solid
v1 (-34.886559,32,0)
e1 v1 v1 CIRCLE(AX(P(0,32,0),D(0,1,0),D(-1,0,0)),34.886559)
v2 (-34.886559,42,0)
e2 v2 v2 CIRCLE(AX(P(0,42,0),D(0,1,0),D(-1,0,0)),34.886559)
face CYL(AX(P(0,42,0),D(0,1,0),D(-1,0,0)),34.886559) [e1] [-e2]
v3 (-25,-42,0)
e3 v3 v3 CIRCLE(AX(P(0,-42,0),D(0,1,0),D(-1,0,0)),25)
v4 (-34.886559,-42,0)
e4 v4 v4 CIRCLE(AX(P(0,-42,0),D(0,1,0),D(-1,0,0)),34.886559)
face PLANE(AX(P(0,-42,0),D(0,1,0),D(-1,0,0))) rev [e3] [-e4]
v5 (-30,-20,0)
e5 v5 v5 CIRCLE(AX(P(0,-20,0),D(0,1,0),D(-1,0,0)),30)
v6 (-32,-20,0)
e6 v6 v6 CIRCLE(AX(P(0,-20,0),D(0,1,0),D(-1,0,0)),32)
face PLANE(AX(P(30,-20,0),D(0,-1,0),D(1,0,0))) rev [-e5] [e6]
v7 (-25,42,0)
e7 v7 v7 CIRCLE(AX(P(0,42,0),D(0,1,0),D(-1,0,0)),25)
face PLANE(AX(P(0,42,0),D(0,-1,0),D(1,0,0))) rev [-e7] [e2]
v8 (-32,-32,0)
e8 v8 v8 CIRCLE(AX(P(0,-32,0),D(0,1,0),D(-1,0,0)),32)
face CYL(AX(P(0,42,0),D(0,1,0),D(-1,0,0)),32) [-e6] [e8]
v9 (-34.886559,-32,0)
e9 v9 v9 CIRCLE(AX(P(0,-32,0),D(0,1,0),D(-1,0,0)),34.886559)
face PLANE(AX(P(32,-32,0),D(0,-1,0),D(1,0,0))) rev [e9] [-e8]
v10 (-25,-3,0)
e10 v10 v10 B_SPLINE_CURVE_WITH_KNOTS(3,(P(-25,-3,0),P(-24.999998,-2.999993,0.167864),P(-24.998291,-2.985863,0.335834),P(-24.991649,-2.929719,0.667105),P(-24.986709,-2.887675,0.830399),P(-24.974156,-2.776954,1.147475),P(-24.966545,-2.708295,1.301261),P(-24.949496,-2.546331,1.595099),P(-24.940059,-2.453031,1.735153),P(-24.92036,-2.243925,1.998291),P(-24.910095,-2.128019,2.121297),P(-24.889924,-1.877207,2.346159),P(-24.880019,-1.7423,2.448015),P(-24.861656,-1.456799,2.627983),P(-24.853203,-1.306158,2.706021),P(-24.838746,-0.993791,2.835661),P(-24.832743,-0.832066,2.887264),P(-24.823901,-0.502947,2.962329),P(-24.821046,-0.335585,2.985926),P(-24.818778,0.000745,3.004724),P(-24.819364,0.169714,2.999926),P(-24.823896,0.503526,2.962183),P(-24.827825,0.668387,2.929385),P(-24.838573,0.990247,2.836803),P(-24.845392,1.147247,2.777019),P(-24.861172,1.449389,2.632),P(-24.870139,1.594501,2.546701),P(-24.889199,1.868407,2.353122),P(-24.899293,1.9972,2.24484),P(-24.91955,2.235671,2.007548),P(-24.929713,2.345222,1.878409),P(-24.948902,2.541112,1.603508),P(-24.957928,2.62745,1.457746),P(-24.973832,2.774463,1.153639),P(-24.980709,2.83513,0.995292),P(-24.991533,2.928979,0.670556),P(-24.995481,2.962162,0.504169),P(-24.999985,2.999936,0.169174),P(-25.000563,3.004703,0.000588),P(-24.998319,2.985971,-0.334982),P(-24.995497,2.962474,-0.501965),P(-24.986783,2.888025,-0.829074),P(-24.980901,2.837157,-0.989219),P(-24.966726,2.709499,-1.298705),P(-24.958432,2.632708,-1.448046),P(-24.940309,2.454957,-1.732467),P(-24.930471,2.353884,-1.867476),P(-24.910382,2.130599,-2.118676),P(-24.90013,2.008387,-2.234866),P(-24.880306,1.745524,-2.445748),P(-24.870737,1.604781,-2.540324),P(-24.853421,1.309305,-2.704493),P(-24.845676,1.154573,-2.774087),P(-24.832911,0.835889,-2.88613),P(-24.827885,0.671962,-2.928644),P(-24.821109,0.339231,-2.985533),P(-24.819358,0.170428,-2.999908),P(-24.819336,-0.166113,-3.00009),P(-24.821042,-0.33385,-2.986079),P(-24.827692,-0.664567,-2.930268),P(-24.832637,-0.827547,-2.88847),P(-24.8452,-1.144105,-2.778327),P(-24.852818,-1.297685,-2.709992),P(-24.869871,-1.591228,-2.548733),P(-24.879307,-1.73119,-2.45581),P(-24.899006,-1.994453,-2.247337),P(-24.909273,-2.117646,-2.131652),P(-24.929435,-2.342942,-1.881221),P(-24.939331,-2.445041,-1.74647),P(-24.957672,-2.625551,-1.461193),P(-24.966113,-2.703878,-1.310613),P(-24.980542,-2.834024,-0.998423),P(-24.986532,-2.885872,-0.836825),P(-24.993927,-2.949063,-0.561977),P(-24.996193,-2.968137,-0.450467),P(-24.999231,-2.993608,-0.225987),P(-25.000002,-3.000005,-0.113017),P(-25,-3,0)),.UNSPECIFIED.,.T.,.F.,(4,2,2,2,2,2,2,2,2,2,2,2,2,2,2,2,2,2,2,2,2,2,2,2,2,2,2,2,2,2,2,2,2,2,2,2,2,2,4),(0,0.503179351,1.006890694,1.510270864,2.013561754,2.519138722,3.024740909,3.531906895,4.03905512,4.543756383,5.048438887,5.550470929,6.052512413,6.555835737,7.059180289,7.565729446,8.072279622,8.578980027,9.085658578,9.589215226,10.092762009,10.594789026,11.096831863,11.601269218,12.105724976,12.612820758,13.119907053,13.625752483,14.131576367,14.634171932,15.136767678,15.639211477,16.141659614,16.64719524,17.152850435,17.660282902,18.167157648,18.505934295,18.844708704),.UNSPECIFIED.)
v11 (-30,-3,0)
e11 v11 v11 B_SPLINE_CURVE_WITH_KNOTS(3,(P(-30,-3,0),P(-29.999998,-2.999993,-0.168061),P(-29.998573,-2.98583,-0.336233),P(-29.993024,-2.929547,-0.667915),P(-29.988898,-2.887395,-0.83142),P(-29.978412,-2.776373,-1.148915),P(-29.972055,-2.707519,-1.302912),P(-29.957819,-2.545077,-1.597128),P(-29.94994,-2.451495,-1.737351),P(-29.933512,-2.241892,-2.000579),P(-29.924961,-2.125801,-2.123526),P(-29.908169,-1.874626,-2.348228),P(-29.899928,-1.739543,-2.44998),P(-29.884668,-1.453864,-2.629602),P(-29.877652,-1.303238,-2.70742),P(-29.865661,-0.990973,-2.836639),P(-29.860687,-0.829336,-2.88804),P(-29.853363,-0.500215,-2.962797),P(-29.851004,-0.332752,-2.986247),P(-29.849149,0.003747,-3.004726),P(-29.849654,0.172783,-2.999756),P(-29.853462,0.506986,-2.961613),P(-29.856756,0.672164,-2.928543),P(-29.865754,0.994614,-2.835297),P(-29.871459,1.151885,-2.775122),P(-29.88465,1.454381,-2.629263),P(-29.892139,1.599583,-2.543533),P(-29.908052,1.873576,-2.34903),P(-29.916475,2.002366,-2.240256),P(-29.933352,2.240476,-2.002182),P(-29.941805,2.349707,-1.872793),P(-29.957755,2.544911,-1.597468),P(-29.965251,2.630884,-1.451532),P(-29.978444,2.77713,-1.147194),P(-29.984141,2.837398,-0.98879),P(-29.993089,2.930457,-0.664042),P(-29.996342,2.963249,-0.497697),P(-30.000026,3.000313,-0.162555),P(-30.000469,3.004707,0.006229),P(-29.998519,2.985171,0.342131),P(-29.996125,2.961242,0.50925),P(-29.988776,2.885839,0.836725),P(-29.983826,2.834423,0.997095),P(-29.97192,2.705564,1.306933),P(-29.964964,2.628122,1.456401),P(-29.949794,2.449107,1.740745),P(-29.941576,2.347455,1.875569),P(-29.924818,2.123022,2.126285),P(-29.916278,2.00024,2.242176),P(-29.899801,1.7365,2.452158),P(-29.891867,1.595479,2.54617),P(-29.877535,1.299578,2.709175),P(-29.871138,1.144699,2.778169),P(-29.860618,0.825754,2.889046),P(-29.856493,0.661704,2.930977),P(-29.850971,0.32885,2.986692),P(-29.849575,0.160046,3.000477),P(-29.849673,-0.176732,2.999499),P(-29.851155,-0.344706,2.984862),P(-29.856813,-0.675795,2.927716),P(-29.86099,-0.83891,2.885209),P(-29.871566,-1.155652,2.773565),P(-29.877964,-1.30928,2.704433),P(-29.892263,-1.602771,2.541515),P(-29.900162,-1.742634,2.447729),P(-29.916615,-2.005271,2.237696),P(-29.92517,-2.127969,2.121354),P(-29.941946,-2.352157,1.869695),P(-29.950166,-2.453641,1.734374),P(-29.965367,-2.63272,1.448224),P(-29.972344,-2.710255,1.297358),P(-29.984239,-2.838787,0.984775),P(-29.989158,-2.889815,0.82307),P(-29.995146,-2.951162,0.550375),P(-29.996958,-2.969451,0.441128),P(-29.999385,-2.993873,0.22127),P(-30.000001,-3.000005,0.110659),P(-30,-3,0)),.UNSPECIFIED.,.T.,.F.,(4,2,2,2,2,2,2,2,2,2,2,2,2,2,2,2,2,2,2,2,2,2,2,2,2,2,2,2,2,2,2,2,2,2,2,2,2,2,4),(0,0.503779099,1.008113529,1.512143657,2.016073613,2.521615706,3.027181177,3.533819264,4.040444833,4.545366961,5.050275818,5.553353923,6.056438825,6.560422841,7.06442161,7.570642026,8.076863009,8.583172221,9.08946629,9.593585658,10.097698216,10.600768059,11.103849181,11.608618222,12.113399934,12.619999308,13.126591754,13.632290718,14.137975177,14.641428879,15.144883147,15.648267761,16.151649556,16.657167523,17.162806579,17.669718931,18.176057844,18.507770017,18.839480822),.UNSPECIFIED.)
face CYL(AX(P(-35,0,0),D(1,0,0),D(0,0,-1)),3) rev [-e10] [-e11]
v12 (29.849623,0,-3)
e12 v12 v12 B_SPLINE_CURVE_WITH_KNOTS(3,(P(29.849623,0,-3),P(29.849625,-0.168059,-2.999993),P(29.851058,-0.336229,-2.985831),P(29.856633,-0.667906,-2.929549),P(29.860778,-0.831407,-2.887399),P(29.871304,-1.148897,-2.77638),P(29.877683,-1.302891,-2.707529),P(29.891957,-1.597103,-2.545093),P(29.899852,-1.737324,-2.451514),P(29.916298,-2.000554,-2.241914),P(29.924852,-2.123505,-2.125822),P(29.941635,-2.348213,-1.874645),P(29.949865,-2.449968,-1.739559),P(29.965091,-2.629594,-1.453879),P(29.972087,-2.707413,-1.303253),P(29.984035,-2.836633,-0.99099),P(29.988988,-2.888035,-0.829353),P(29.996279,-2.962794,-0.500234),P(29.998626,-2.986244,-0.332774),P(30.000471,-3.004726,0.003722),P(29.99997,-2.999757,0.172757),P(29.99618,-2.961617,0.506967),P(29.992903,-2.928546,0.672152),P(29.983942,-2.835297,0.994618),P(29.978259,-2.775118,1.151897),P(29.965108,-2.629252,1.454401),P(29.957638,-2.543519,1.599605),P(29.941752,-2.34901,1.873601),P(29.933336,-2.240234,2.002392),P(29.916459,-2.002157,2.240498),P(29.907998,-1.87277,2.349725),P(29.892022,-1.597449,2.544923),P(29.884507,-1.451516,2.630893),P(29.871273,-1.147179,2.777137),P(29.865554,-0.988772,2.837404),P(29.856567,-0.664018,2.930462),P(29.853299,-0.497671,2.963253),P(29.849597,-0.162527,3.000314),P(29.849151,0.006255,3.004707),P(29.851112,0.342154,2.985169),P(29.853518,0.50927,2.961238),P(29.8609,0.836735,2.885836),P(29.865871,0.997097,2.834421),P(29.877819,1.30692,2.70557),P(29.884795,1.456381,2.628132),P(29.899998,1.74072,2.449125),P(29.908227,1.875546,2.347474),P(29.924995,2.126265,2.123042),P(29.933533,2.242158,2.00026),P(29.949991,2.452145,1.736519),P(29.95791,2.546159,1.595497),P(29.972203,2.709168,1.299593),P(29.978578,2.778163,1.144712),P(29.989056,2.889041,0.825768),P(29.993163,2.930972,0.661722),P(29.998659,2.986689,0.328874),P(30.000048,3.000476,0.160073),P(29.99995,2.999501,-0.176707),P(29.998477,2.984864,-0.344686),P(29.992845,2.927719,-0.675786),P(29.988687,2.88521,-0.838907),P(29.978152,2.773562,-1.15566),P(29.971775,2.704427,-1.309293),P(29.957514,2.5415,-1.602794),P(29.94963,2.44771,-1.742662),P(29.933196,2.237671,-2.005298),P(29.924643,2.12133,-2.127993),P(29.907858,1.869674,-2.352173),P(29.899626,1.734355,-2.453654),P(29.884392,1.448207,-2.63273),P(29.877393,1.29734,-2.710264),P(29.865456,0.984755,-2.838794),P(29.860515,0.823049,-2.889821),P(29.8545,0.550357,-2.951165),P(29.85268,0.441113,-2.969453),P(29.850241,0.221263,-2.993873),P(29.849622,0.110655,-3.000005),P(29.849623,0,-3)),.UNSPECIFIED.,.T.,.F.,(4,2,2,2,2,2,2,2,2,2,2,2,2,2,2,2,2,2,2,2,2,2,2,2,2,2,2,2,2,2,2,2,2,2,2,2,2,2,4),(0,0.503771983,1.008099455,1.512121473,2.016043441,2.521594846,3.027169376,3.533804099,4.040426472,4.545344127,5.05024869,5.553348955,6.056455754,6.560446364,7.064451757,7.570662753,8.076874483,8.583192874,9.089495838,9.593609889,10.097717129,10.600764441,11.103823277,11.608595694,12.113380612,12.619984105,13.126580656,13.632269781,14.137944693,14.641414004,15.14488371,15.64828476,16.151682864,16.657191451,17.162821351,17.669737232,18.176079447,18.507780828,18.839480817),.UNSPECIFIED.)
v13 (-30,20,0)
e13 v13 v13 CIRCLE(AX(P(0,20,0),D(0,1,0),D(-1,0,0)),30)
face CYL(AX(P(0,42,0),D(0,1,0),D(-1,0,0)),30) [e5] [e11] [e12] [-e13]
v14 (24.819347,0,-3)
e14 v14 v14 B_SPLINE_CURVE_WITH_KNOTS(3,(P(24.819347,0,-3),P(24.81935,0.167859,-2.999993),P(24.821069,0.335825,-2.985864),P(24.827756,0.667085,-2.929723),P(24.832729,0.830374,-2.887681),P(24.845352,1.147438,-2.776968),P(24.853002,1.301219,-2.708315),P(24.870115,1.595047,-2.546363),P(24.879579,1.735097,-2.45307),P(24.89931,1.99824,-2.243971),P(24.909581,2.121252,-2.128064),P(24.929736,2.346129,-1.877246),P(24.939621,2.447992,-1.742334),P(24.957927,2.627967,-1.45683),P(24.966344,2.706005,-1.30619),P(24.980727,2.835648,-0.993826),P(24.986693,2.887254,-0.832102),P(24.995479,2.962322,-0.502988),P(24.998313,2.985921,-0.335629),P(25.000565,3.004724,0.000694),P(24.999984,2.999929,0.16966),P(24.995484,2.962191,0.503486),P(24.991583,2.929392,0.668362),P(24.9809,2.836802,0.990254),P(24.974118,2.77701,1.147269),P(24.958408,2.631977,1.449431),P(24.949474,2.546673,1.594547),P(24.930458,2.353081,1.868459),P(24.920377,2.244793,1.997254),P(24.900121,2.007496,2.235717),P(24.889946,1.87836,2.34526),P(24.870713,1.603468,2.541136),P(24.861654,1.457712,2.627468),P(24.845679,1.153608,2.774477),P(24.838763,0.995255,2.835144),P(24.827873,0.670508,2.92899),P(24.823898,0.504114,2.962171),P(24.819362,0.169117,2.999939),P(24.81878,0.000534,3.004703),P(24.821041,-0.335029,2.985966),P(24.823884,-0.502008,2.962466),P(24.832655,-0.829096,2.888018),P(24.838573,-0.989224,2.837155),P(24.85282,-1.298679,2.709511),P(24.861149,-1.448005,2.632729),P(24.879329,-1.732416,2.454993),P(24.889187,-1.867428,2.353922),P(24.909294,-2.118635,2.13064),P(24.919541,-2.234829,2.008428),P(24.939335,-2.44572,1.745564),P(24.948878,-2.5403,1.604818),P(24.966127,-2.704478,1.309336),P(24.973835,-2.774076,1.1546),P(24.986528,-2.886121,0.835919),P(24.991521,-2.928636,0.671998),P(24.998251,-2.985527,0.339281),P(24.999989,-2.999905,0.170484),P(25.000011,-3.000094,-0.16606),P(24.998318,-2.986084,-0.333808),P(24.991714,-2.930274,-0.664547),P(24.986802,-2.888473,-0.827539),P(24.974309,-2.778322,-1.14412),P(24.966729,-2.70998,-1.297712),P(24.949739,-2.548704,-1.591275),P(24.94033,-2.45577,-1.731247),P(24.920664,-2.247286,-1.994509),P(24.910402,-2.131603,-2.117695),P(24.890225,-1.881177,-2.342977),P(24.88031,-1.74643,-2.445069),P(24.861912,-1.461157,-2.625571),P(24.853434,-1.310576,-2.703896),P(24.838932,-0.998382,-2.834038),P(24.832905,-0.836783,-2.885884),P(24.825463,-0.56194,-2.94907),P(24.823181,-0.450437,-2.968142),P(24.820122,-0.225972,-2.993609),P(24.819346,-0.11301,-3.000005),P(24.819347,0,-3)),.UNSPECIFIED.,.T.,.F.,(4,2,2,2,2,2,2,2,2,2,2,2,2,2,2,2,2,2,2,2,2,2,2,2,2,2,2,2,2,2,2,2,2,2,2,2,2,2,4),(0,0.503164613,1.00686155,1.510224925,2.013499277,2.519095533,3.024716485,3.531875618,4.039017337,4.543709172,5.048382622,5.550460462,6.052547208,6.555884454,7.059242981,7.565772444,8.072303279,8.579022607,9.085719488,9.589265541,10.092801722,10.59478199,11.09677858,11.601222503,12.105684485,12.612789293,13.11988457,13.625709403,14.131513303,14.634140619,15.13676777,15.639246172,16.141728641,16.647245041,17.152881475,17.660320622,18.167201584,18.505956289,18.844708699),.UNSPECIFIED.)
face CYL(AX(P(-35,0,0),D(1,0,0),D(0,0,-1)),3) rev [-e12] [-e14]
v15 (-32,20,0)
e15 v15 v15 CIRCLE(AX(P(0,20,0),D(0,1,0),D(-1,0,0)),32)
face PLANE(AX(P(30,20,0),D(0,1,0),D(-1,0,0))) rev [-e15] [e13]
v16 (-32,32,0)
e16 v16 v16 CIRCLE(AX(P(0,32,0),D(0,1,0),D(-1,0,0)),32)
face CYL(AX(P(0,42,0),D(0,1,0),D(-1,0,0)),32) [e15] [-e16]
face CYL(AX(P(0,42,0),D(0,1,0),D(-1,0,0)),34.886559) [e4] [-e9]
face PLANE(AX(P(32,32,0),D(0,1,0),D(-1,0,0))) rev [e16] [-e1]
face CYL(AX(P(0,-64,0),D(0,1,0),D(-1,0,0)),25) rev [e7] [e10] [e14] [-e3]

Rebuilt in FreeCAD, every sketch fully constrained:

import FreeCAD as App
import Part
import Sketcher
from FreeCAD import Vector


def add_polygon(sketch, points):
    """Adds a closed chain of lines whose ends are joined by coincident constraints."""
    first, n = sketch.GeometryCount, len(points)
    for a, b in zip(points, points[1:] + points[:1]):
        sketch.addGeometry(Part.LineSegment(App.Vector(*a, 0), App.Vector(*b, 0)), False)
    for i in range(n):
        sketch.addConstraint(Sketcher.Constraint("Coincident", first + i, 2, first + (i + 1) % n, 1))

doc = App.newDocument("Part")
body = doc.addObject("PartDesign::Body", "Body")

sketch1 = doc.addObject("Sketcher::SketchObject", "Sketch")
body.addObject(sketch1)
sketch1.AttachmentSupport = (doc.XY_Plane, [""])
sketch1.MapMode = "FlatFace"
add_polygon(sketch1, [(0, 42), (0, -42), (34.9, -42), (34.9, -32), (32, -32), (32, -20), (30, -20), (30, 20), (32, 20), (32, 32), (34.9, 32), (34.9, 42)])
sketch1.addConstraint(Sketcher.Constraint("Vertical", 0))
sketch1.addConstraint(Sketcher.Constraint("Horizontal", 1))
sketch1.addConstraint(Sketcher.Constraint("Vertical", 2))
sketch1.addConstraint(Sketcher.Constraint("Horizontal", 3))
sketch1.addConstraint(Sketcher.Constraint("Vertical", 4))
sketch1.addConstraint(Sketcher.Constraint("Horizontal", 5))
sketch1.addConstraint(Sketcher.Constraint("Vertical", 6))
sketch1.addConstraint(Sketcher.Constraint("Horizontal", 7))
sketch1.addConstraint(Sketcher.Constraint("Vertical", 8))
sketch1.addConstraint(Sketcher.Constraint("Horizontal", 9))
sketch1.addConstraint(Sketcher.Constraint("Vertical", 10))
sketch1.addConstraint(Sketcher.Constraint("Horizontal", 11))
sketch1.addConstraint(Sketcher.Constraint("Symmetric", 0, 2, 11, 2, -1, 1))
sketch1.addConstraint(Sketcher.Constraint("Symmetric", 4, 2, 7, 2, -1))
sketch1.addConstraint(Sketcher.Constraint("Symmetric", 2, 2, 9, 2, -1))
sketch1.addConstraint(Sketcher.Constraint("DistanceX", 5, 2, 5, 1, 2.0))
sketch1.addConstraint(Sketcher.Constraint("DistanceY", 0, 2, 0, 1, 84.0))
sketch1.addConstraint(Sketcher.Constraint("DistanceY", 2, 1, 2, 2, 10.0))
sketch1.addConstraint(Sketcher.Constraint("DistanceY", 4, 1, 4, 2, 12.0))
sketch1.addConstraint(Sketcher.Constraint("DistanceX", -1, 1, 3, 2, 32.0))
sketch1.addConstraint(Sketcher.Constraint("DistanceX", 1, 1, 1, 2, 34.886559))
revolution = doc.addObject("PartDesign::Revolution", "Revolution")
body.addObject(revolution)
revolution.Profile = sketch1
revolution.ReferenceAxis = (sketch1, ["V_Axis"])
revolution.Angle = 360

sketch2 = doc.addObject("Sketcher::SketchObject", "Sketch001")
body.addObject(sketch2)
sketch2.AttachmentSupport = (doc.XZ_Plane, [""])
sketch2.MapMode = "FlatFace"
sketch2.AttachmentOffset = App.Placement(Vector(0, 0, -42), App.Rotation())
sketch2.addGeometry(Part.Circle(Vector(0, 0, 0), Vector(0, 0, 1), 25), False)
sketch2.addConstraint(Sketcher.Constraint("Coincident", 0, 3, -1, 1))
sketch2.addConstraint(Sketcher.Constraint("Diameter", 0, 50.0))
pocket1 = doc.addObject("PartDesign::Pocket", "Pocket")
body.addObject(pocket1)
pocket1.Profile = sketch2
pocket1.Length = 106
pocket1.Reversed = True

sketch3 = doc.addObject("Sketcher::SketchObject", "Sketch002")
body.addObject(sketch3)
sketch3.AttachmentSupport = (doc.YZ_Plane, [""])
sketch3.MapMode = "FlatFace"
sketch3.addGeometry(Part.Circle(Vector(0, 0, 0), Vector(0, 0, 1), 3), False)
sketch3.addConstraint(Sketcher.Constraint("Coincident", 0, 3, -1, 1))
sketch3.addConstraint(Sketcher.Constraint("Diameter", 0, 6.0))
pocket2 = doc.addObject("PartDesign::Pocket", "Pocket001")
body.addObject(pocket2)
pocket2.Profile = sketch3
pocket2.Length = 70
pocket2.Midplane = True

doc.recompute()
